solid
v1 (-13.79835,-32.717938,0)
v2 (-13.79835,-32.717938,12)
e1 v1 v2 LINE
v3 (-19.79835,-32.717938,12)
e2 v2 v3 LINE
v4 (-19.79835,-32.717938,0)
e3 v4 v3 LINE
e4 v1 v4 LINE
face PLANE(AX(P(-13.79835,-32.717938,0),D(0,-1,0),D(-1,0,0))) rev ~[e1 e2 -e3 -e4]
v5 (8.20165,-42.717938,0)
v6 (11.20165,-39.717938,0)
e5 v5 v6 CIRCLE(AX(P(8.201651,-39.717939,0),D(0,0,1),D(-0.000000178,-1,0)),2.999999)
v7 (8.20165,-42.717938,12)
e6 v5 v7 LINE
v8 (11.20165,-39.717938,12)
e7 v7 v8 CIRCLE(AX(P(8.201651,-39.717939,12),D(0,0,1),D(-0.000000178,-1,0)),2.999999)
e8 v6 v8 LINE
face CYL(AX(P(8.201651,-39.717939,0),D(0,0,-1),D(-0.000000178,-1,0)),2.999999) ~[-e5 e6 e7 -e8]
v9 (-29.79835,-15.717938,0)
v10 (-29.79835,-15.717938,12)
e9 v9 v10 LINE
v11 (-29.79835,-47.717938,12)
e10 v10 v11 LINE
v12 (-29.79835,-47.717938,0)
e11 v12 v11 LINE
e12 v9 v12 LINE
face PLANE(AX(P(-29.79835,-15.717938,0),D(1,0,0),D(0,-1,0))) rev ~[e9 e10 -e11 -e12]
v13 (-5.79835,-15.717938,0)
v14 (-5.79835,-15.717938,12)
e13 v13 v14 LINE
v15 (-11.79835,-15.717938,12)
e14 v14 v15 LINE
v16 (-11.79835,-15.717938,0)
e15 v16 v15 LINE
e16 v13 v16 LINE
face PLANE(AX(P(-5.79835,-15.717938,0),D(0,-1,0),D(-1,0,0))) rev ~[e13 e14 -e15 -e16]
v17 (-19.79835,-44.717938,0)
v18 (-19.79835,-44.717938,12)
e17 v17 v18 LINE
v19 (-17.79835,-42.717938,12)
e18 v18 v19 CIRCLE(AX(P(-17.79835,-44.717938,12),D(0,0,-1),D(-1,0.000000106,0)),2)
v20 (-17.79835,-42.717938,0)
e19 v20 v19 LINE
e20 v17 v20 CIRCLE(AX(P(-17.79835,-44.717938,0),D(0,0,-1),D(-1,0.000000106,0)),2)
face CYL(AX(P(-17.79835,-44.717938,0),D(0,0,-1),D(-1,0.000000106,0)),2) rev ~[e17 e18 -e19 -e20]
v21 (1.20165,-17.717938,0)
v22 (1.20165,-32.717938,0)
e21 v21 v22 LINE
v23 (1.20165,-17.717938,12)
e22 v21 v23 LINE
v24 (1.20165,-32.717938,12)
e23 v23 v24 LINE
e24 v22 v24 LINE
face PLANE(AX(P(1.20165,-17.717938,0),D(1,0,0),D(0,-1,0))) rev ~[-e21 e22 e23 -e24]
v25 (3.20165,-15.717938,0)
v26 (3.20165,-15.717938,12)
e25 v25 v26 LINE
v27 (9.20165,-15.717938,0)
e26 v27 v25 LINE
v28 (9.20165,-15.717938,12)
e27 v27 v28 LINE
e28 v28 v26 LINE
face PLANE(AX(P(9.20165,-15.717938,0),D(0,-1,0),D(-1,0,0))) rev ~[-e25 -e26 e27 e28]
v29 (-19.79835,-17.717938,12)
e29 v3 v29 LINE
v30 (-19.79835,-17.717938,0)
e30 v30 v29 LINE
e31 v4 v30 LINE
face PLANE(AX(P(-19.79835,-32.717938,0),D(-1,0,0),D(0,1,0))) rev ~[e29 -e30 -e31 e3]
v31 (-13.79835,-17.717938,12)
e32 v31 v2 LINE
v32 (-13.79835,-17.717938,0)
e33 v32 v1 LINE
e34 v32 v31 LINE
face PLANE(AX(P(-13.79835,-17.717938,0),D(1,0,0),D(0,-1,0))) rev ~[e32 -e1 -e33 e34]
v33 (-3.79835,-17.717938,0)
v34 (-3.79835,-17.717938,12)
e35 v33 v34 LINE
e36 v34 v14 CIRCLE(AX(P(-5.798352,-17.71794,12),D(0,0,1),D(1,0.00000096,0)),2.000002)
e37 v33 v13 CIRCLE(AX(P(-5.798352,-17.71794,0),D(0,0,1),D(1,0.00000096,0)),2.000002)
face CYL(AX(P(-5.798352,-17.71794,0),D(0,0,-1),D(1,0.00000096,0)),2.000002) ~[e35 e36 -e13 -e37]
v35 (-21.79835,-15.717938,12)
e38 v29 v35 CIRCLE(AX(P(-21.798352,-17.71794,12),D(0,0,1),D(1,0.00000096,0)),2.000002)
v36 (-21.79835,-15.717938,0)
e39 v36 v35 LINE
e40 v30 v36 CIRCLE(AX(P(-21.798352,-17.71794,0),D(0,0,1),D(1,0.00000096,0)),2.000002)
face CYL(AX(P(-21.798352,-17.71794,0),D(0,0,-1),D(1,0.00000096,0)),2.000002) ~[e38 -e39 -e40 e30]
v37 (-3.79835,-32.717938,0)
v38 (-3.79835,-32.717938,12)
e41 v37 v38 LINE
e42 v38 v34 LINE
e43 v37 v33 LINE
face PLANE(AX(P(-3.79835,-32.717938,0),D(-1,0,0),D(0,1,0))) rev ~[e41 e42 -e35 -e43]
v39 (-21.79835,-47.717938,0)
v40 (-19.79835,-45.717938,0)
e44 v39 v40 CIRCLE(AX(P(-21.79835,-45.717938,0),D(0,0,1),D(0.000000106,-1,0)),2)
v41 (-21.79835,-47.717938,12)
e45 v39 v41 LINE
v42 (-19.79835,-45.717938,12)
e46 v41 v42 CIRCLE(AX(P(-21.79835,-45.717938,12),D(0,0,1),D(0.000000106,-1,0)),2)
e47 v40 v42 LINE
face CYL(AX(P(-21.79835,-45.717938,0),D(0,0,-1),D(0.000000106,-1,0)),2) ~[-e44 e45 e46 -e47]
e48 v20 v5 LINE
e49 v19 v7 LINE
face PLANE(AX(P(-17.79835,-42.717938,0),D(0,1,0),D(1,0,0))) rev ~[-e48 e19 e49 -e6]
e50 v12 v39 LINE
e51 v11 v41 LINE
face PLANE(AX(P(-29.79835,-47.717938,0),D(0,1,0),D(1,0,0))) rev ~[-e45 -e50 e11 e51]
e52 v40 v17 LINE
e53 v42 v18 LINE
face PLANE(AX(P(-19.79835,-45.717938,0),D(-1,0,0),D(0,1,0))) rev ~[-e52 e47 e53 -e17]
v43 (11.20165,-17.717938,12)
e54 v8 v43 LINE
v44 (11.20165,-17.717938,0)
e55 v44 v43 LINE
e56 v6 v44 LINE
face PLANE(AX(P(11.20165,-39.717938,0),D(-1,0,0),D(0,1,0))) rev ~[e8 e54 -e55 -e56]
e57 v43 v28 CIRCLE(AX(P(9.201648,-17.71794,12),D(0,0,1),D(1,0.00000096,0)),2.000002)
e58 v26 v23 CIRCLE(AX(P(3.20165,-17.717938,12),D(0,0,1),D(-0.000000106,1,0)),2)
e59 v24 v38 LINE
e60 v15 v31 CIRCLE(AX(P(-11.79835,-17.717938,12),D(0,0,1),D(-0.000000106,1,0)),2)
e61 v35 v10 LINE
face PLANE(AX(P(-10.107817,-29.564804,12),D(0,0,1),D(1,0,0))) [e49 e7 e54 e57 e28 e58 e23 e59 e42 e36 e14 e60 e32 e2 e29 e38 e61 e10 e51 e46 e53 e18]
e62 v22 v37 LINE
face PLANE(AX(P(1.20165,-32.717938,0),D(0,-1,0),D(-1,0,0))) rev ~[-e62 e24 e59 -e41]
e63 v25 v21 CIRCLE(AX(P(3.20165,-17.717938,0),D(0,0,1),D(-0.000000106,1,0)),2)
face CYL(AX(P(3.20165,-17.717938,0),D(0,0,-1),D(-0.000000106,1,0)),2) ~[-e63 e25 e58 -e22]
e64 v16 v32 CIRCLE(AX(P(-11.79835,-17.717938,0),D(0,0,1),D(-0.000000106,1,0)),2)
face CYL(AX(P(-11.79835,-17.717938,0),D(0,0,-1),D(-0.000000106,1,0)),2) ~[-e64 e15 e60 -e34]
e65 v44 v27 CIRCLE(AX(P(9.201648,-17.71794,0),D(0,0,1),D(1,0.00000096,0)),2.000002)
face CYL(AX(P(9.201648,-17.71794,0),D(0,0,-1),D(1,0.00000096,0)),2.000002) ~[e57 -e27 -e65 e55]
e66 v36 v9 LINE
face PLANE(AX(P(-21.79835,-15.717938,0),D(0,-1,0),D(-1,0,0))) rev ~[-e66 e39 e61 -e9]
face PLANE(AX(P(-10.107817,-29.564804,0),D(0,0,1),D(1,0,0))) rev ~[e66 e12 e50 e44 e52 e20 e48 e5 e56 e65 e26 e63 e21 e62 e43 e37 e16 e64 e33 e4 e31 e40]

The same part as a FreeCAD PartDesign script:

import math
import FreeCAD as App
import Part
import Sketcher

doc = App.newDocument("Part")
params = doc.addObject("Spreadsheet::Sheet", "Params")
for row, (alias, value) in enumerate([
    ("sketch1_radius", "2 mm"),
    ("sketch1_radius2", "2.999999 mm"),
    ("sketch1_width", "8 mm"),
    ("sketch1_width2", "26 mm"),
    ("sketch1_width3", "6 mm"),
    ("pad1_length", "12 mm"),
], start=1):
    params.set(f"A{row}", alias)
    params.set(f"B{row}", "=" + value)
    params.setAlias(f"B{row}", alias)

body = doc.addObject("PartDesign::Body", "Body")

# Sketch on XY plane
sketch1 = body.newObject("Sketcher::SketchObject", "Sketch")
sketch1.AttachmentSupport = (doc.getObject("XY_Plane"), [""])
sketch1.MapMode = "FlatFace"
sketch1.addGeometry([
    Part.LineSegment(App.Vector(-21.79835, -15.717938, 0), App.Vector(-29.79835, -15.717938, 0)),  # 0
    Part.LineSegment(App.Vector(-29.79835, -15.717938, 0), App.Vector(-29.79835, -47.717938, 0)),  # 1
    Part.LineSegment(App.Vector(-29.79835, -47.717938, 0), App.Vector(-21.79835, -47.717938, 0)),  # 2
    Part.ArcOfCircle(Part.Circle(App.Vector(-21.79835, -45.717938, 0), App.Vector(0, 0, 1), 2), math.radians(-89.999994), math.radians(-0.000006)),  # 3
    Part.LineSegment(App.Vector(-19.79835, -45.717938, 0), App.Vector(-19.79835, -44.717938, 0)),  # 4
    Part.ArcOfCircle(Part.Circle(App.Vector(-17.79835, -44.717938, 0), App.Vector(0, 0, 1), 2), math.radians(90.000006), math.radians(179.999994)),  # 5
    Part.LineSegment(App.Vector(-17.79835, -42.717938, 0), App.Vector(8.20165, -42.717938, 0)),  # 6
    Part.ArcOfCircle(Part.Circle(App.Vector(8.201651, -39.717939, 0), App.Vector(0, 0, 1), 2.999999), math.radians(-90.00001), math.radians(0.00001)),  # 7
    Part.LineSegment(App.Vector(11.20165, -39.717938, 0), App.Vector(11.20165, -17.717938, 0)),  # 8
    Part.ArcOfCircle(Part.Circle(App.Vector(9.201648, -17.71794, 0), App.Vector(0, 0, 1), 2.000002), math.radians(0.000055), math.radians(89.999945)),  # 9
    Part.LineSegment(App.Vector(9.20165, -15.717938, 0), App.Vector(3.20165, -15.717938, 0)),  # 10
    Part.ArcOfCircle(Part.Circle(App.Vector(3.20165, -17.717938, 0), App.Vector(0, 0, 1), 2), math.radians(90.000006), math.radians(179.999994)),  # 11
    Part.LineSegment(App.Vector(1.20165, -17.717938, 0), App.Vector(1.20165, -32.717938, 0)),  # 12
    Part.LineSegment(App.Vector(1.20165, -32.717938, 0), App.Vector(-3.79835, -32.717938, 0)),  # 13
    Part.LineSegment(App.Vector(-3.79835, -32.717938, 0), App.Vector(-3.79835, -17.717938, 0)),  # 14
    Part.ArcOfCircle(Part.Circle(App.Vector(-5.798352, -17.71794, 0), App.Vector(0, 0, 1), 2.000002), math.radians(0.000055), math.radians(89.999945)),  # 15
    Part.LineSegment(App.Vector(-5.79835, -15.717938, 0), App.Vector(-11.79835, -15.717938, 0)),  # 16
    Part.ArcOfCircle(Part.Circle(App.Vector(-11.79835, -17.717938, 0), App.Vector(0, 0, 1), 2), math.radians(90.000006), math.radians(179.999994)),  # 17
    Part.LineSegment(App.Vector(-13.79835, -17.717938, 0), App.Vector(-13.79835, -32.717938, 0)),  # 18
    Part.LineSegment(App.Vector(-13.79835, -32.717938, 0), App.Vector(-19.79835, -32.717938, 0)),  # 19
    Part.LineSegment(App.Vector(-19.79835, -32.717938, 0), App.Vector(-19.79835, -17.717938, 0)),  # 20
    Part.ArcOfCircle(Part.Circle(App.Vector(-21.798352, -17.71794, 0), App.Vector(0, 0, 1), 2.000002), math.radians(0.000055), math.radians(89.999945)),  # 21
], False)
sketch1.addConstraint([
    Sketcher.Constraint("Coincident", 0, 2, 1, 1),
    Sketcher.Constraint("Coincident", 1, 2, 2, 1),
    Sketcher.Constraint("Tangent", 2, 2, 3, 1),
    Sketcher.Constraint("Tangent", 3, 2, 4, 1),
    Sketcher.Constraint("Tangent", 4, 2, 5, 2),
    Sketcher.Constraint("Tangent", 5, 1, 6, 1),
    Sketcher.Constraint("Tangent", 6, 2, 7, 1),
    Sketcher.Constraint("Tangent", 7, 2, 8, 1),
    Sketcher.Constraint("Tangent", 8, 2, 9, 1),
    Sketcher.Constraint("Tangent", 9, 2, 10, 1),
    Sketcher.Constraint("Tangent", 10, 2, 11, 1),
    Sketcher.Constraint("Tangent", 11, 2, 12, 1),
    Sketcher.Constraint("Coincident", 12, 2, 13, 1),
    Sketcher.Constraint("Coincident", 13, 2, 14, 1),
    Sketcher.Constraint("Tangent", 14, 2, 15, 1),
    Sketcher.Constraint("Tangent", 15, 2, 16, 1),
    Sketcher.Constraint("Tangent", 16, 2, 17, 1),
    Sketcher.Constraint("Tangent", 17, 2, 18, 1),
    Sketcher.Constraint("Coincident", 18, 2, 19, 1),
    Sketcher.Constraint("Coincident", 19, 2, 20, 1),
    Sketcher.Constraint("Tangent", 20, 2, 21, 1),
    Sketcher.Constraint("Tangent", 21, 2, 0, 1),
    Sketcher.Constraint("Horizontal", 0),
    Sketcher.Constraint("Vertical", 1),
    Sketcher.Constraint("Horizontal", 2),
    Sketcher.Constraint("Vertical", 4),
    Sketcher.Constraint("Horizontal", 6),
    Sketcher.Constraint("Vertical", 8),
    Sketcher.Constraint("Horizontal", 10),
    Sketcher.Constraint("Vertical", 12),
    Sketcher.Constraint("Horizontal", 13),
    Sketcher.Constraint("Vertical", 14),
    Sketcher.Constraint("Horizontal", 16),
    Sketcher.Constraint("Vertical", 18),
    Sketcher.Constraint("Horizontal", 19),
    Sketcher.Constraint("Vertical", 20),
    Sketcher.Constraint("Equal", 3, 5),
    Sketcher.Constraint("Equal", 5, 9),
    Sketcher.Constraint("Equal", 9, 11),
    Sketcher.Constraint("Equal", 11, 15),
    Sketcher.Constraint("Equal", 15, 17),
    Sketcher.Constraint("Equal", 17, 21),
    Sketcher.Constraint("Horizontal", 11, 3, 15, 3),
    Sketcher.Constraint("Horizontal", 17, 3, 21, 3),
    Sketcher.Constraint("Horizontal", 13, 2, 18, 2),
    Sketcher.Constraint("Vertical", 3, 3, 21, 3),
    Sketcher.Constraint("Equal", 10, 16),
    Sketcher.Constraint("Equal", 16, 19),
    Sketcher.Constraint("Radius", 3, 2.0),
    Sketcher.Constraint("Radius", 7, 2.999999),
    Sketcher.Constraint("DistanceX", 0, 2, 0, 1, 8.0),
    Sketcher.Constraint("DistanceX", 6, 1, 6, 2, 26.0),
    Sketcher.Constraint("DistanceX", 10, 2, 10, 1, 6.0),
    Sketcher.Constraint("DistanceY", 1, 2, 1, 1, 32.0),
    Sketcher.Constraint("DistanceY", 4, 1, 4, 2, 1.0),
    Sketcher.Constraint("DistanceY", 12, 2, 12, 1, 15.0),
    Sketcher.Constraint("DistanceX", 3, 3, -1, 1, 21.79835),
    Sketcher.Constraint("DistanceY", 5, 3, -1, 1, 44.717938),
])
sketch1.setExpression("Constraints[48]", "Params.sketch1_radius")
sketch1.setExpression("Constraints[49]", "Params.sketch1_radius2")
sketch1.setExpression("Constraints[50]", "Params.sketch1_width")
sketch1.setExpression("Constraints[51]", "Params.sketch1_width2")
sketch1.setExpression("Constraints[52]", "Params.sketch1_width3")
pad1 = body.newObject("PartDesign::Pad", "Pad")
pad1.Profile = sketch1
pad1.setExpression("Length", "Params.pad1_length")

doc.recompute()
